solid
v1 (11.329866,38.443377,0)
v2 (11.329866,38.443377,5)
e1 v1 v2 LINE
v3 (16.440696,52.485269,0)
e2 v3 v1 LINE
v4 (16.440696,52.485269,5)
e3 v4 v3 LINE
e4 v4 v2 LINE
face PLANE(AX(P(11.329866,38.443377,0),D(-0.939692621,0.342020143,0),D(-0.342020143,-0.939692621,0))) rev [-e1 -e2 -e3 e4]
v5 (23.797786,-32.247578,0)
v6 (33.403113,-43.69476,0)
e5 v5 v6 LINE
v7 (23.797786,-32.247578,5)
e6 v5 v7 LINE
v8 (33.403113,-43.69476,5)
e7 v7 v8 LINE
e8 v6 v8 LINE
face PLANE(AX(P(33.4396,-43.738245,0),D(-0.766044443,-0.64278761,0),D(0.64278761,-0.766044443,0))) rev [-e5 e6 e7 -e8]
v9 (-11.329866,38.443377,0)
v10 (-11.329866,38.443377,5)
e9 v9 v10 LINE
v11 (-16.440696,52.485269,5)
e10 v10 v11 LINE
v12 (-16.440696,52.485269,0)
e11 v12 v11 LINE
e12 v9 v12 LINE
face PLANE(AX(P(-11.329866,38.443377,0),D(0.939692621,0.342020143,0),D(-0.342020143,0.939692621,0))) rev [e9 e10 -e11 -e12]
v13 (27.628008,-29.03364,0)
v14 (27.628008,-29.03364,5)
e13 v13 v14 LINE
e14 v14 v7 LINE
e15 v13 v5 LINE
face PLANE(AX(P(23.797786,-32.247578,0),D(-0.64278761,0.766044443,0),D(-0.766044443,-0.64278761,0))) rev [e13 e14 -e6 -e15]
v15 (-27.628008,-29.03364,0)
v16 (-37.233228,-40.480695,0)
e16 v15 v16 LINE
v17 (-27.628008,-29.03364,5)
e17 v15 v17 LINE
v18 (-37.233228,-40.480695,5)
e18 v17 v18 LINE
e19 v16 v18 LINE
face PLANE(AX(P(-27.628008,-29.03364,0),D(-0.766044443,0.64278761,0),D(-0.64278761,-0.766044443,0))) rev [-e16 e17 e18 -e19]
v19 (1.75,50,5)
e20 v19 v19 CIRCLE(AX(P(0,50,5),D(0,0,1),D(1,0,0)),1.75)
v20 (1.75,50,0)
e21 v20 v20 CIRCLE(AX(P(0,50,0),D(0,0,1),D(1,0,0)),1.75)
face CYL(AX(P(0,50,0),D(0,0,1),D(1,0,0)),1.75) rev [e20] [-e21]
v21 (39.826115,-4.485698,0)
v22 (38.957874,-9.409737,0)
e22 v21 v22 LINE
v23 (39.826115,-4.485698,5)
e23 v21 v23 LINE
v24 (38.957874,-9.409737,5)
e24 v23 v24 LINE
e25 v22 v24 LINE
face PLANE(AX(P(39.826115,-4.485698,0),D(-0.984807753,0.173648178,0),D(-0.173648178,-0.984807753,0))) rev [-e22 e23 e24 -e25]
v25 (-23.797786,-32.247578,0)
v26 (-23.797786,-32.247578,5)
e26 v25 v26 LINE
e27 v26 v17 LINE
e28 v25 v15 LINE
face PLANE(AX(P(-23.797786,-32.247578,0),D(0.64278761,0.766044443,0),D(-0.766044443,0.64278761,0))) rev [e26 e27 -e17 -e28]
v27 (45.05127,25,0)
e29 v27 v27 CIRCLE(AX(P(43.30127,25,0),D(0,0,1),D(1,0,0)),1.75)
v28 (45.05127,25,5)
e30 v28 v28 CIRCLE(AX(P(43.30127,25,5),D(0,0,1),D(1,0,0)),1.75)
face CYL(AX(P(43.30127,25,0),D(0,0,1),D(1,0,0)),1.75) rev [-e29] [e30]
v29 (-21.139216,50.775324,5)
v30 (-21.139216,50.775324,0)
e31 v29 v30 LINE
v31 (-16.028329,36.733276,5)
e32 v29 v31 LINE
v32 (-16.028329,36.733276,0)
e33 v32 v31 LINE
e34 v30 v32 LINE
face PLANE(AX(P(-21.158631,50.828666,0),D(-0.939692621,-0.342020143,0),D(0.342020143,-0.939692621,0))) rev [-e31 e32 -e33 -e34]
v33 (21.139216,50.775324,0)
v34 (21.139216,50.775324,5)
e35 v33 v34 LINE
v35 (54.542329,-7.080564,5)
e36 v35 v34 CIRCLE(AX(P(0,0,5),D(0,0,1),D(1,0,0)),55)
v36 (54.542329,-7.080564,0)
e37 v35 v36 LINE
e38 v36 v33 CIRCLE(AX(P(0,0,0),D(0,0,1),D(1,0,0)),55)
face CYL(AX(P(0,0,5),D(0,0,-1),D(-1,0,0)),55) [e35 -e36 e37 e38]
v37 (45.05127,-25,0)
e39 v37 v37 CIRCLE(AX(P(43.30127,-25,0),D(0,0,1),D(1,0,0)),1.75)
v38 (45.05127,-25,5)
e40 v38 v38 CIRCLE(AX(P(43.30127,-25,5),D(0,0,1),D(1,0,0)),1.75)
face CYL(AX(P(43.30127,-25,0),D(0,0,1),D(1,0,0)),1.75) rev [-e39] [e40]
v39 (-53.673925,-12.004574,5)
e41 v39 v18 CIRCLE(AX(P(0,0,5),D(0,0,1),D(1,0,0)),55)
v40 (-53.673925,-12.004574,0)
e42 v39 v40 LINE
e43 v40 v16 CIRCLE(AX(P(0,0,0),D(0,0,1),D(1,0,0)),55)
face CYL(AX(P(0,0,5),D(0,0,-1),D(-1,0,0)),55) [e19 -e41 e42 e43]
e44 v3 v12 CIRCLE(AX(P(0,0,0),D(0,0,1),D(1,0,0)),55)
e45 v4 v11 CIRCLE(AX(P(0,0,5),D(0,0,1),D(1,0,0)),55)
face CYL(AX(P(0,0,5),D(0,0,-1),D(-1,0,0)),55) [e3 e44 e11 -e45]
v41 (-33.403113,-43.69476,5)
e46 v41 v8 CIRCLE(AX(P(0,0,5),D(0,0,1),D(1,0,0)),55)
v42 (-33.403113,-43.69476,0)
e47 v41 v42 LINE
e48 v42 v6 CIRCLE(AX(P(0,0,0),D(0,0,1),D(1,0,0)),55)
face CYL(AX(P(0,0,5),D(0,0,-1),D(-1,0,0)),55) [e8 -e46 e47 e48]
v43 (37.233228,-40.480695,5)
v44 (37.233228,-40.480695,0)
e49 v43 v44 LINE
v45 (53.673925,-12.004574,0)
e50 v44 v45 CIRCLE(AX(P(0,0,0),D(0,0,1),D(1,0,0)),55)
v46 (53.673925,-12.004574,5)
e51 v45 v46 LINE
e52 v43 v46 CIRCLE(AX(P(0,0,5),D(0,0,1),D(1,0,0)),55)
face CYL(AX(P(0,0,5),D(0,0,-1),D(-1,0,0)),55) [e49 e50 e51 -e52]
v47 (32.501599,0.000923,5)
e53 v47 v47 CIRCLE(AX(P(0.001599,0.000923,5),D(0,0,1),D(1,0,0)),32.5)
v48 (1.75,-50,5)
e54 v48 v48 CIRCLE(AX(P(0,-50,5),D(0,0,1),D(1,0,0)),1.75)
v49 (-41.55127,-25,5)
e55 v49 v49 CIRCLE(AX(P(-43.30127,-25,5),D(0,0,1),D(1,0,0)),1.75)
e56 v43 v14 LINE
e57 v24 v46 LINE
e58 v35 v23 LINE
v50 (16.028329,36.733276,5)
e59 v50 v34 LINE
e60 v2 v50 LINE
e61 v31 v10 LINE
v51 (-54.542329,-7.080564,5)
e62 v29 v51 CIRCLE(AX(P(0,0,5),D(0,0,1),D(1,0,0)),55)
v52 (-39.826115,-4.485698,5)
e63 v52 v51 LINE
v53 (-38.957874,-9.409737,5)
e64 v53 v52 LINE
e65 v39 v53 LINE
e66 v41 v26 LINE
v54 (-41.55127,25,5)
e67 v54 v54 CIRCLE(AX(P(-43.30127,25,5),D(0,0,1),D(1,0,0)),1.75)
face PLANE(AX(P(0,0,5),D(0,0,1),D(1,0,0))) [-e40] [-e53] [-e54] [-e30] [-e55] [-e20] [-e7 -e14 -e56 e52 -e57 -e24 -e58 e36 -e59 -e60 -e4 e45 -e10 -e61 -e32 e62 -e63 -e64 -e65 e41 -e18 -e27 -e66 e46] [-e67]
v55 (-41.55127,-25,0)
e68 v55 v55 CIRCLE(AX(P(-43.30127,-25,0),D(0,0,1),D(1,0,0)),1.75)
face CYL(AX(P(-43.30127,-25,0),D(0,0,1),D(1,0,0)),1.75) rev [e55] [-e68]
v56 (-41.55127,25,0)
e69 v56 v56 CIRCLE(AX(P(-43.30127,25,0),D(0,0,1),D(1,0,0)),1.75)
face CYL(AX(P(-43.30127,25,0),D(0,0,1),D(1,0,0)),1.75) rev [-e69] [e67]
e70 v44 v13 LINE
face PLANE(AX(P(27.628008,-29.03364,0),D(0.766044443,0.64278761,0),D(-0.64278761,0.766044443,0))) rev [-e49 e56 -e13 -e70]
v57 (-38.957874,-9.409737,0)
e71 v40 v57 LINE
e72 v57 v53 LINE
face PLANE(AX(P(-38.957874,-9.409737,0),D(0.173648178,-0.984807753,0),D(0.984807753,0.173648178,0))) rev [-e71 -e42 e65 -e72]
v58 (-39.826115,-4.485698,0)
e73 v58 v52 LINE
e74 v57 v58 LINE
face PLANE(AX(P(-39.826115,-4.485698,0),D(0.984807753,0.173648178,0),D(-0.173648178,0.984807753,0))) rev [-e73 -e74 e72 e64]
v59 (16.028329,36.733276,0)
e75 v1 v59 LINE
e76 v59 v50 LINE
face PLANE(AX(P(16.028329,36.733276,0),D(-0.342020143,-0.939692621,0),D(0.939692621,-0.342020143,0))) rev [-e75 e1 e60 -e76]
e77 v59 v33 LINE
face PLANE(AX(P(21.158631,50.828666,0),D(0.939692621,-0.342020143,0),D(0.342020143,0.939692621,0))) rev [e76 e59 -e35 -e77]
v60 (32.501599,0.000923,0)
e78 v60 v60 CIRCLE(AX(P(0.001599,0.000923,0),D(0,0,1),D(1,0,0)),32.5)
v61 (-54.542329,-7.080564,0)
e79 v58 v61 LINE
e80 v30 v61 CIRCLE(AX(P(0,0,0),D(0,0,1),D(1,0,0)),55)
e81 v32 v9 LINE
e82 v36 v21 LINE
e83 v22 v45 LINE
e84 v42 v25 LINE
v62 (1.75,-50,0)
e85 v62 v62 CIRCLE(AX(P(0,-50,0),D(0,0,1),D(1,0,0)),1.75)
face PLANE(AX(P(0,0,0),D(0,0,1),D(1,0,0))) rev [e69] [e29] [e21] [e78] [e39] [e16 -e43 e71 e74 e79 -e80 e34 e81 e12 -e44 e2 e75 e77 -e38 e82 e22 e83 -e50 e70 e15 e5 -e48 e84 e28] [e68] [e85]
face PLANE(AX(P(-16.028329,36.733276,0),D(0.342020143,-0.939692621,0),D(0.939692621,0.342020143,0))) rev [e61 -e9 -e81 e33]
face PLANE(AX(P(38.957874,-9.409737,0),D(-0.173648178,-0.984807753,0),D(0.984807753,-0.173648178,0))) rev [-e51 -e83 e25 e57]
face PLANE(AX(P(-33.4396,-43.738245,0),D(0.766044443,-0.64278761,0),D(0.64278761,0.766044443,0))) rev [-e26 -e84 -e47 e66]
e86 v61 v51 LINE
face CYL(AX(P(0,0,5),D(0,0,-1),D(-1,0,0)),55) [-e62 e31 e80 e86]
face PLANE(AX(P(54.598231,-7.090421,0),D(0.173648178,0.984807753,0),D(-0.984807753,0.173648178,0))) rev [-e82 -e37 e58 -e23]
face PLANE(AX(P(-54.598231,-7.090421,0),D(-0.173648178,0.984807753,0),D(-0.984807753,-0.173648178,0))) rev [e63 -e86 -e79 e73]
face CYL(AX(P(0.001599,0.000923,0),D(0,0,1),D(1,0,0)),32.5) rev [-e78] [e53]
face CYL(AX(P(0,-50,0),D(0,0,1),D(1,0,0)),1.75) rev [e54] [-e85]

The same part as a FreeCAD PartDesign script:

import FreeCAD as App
import Part
import Sketcher
Q = App.Units.Quantity

doc = App.newDocument("Part")
body = doc.addObject("PartDesign::Body", "Body")

sketch1 = doc.addObject("Sketcher::SketchObject", "Sketch")
body.addObject(sketch1)
sketch1.AttachmentSupport = (doc.XY_Plane, [""])
sketch1.MapMode = "FlatFace"
sketch1.addGeometry(Part.Circle(App.Vector(0, 0, 0), App.Vector(0, 0, 1), 55), False)
sketch1.addConstraint([
    Sketcher.Constraint("Coincident", 0, 3, -1, 1),
    Sketcher.Constraint("Diameter", 0, Q("110 mm")),
])
pad1 = doc.addObject("PartDesign::Pad", "Pad")
body.addObject(pad1)
pad1.Profile = sketch1
pad1.Length = 5

sketch2 = doc.addObject("Sketcher::SketchObject", "Sketch001")
body.addObject(sketch2)
sketch2.AttachmentSupport = (doc.XY_Plane, [""])
sketch2.MapMode = "FlatFace"
sketch2.AttachmentOffset = App.Placement(App.Vector(0, 0, 5), App.Rotation())
sketch2.addGeometry([
    Part.Circle(App.Vector(0, 50, 0), App.Vector(0, 0, 1), 1.8),
    Part.Circle(App.Vector(43.3, 25, 0), App.Vector(0, 0, 1), 1.8),
    Part.Circle(App.Vector(43.3, -25, 0), App.Vector(0, 0, 1), 1.8),
    Part.Circle(App.Vector(0, -50, 0), App.Vector(0, 0, 1), 1.8),
    Part.Circle(App.Vector(-43.3, -25, 0), App.Vector(0, 0, 1), 1.8),
    Part.Circle(App.Vector(-43.3, 25, 0), App.Vector(0, 0, 1), 1.8),
    Part.Circle(App.Vector(0, 0, 0), App.Vector(0, 0, 1), 32.5),
    Part.LineSegment(App.Vector(-21.2, 50.8, 0), App.Vector(-16, 36.7, 0)),
    Part.LineSegment(App.Vector(-16, 36.7, 0), App.Vector(-11.3, 38.4, 0)),
    Part.LineSegment(App.Vector(-11.3, 38.4, 0), App.Vector(-16.5, 52.5, 0)),
    Part.LineSegment(App.Vector(-16.5, 52.5, 0), App.Vector(-21.2, 50.8, 0)),
    Part.LineSegment(App.Vector(11.3, 38.4, 0), App.Vector(16, 36.7, 0)),
    Part.LineSegment(App.Vector(16, 36.7, 0), App.Vector(21.2, 50.8, 0)),
    Part.LineSegment(App.Vector(21.2, 50.8, 0), App.Vector(16.5, 52.5, 0)),
    Part.LineSegment(App.Vector(16.5, 52.5, 0), App.Vector(11.3, 38.4, 0)),
    Part.LineSegment(App.Vector(54.6, -7.1, 0), App.Vector(39.8, -4.5, 0)),
    Part.LineSegment(App.Vector(39.8, -4.5, 0), App.Vector(39, -9.4, 0)),
    Part.LineSegment(App.Vector(39, -9.4, 0), App.Vector(53.7, -12, 0)),
    Part.LineSegment(App.Vector(53.7, -12, 0), App.Vector(54.6, -7.1, 0)),
    Part.LineSegment(App.Vector(37.3, -40.5, 0), App.Vector(27.6, -29, 0)),
    Part.LineSegment(App.Vector(27.6, -29, 0), App.Vector(23.8, -32.2, 0)),
    Part.LineSegment(App.Vector(23.8, -32.2, 0), App.Vector(33.4, -43.7, 0)),
    Part.LineSegment(App.Vector(33.4, -43.7, 0), App.Vector(37.3, -40.5, 0)),
    Part.LineSegment(App.Vector(-33.4, -43.7, 0), App.Vector(-23.8, -32.2, 0)),
    Part.LineSegment(App.Vector(-23.8, -32.2, 0), App.Vector(-27.6, -29, 0)),
    Part.LineSegment(App.Vector(-27.6, -29, 0), App.Vector(-37.3, -40.5, 0)),
    Part.LineSegment(App.Vector(-37.3, -40.5, 0), App.Vector(-33.4, -43.7, 0)),
    Part.LineSegment(App.Vector(-53.7, -12, 0), App.Vector(-39, -9.4, 0)),
    Part.LineSegment(App.Vector(-39, -9.4, 0), App.Vector(-39.8, -4.5, 0)),
    Part.LineSegment(App.Vector(-39.8, -4.5, 0), App.Vector(-54.6, -7.1, 0)),
    Part.LineSegment(App.Vector(-54.6, -7.1, 0), App.Vector(-53.7, -12, 0)),
], False)
sketch2.addConstraint([
    Sketcher.Constraint("Coincident", 7, 2, 8, 1),
    Sketcher.Constraint("Coincident", 8, 2, 9, 1),
    Sketcher.Constraint("Coincident", 9, 2, 10, 1),
    Sketcher.Constraint("Coincident", 10, 2, 7, 1),
    Sketcher.Constraint("Coincident", 11, 2, 12, 1),
    Sketcher.Constraint("Coincident", 12, 2, 13, 1),
    Sketcher.Constraint("Coincident", 13, 2, 14, 1),
    Sketcher.Constraint("Coincident", 14, 2, 11, 1),
    Sketcher.Constraint("Coincident", 15, 2, 16, 1),
    Sketcher.Constraint("Coincident", 16, 2, 17, 1),
    Sketcher.Constraint("Coincident", 17, 2, 18, 1),
    Sketcher.Constraint("Coincident", 18, 2, 15, 1),
    Sketcher.Constraint("Coincident", 19, 2, 20, 1),
    Sketcher.Constraint("Coincident", 20, 2, 21, 1),
    Sketcher.Constraint("Coincident", 21, 2, 22, 1),
    Sketcher.Constraint("Coincident", 22, 2, 19, 1),
    Sketcher.Constraint("Coincident", 23, 2, 24, 1),
    Sketcher.Constraint("Coincident", 24, 2, 25, 1),
    Sketcher.Constraint("Coincident", 25, 2, 26, 1),
    Sketcher.Constraint("Coincident", 26, 2, 23, 1),
    Sketcher.Constraint("Coincident", 27, 2, 28, 1),
    Sketcher.Constraint("Coincident", 28, 2, 29, 1),
    Sketcher.Constraint("Coincident", 29, 2, 30, 1),
    Sketcher.Constraint("Coincident", 30, 2, 27, 1),
    Sketcher.Constraint("Equal", 0, 1),
    Sketcher.Constraint("Equal", 1, 2),
    Sketcher.Constraint("Equal", 2, 3),
    Sketcher.Constraint("Equal", 3, 4),
    Sketcher.Constraint("Equal", 4, 5),
    Sketcher.Constraint("Symmetric", 0, 3, 3, 3, -1, 1),
    Sketcher.Constraint("Symmetric", 1, 3, 4, 3, -1, 1),
    Sketcher.Constraint("Symmetric", 2, 3, 5, 3, -1, 1),
    Sketcher.Constraint("Symmetric", 2, 3, 4, 3, -2),
    Sketcher.Constraint("Symmetric", 7, 2, 11, 2, -2),
    Sketcher.Constraint("Symmetric", 10, 2, 12, 2, -2),
    Sketcher.Constraint("Symmetric", 9, 2, 13, 2, -2),
    Sketcher.Constraint("Symmetric", 8, 2, 14, 2, -2),
    Sketcher.Constraint("Symmetric", 20, 2, 23, 2, -2),
    Sketcher.Constraint("Symmetric", 19, 2, 24, 2, -2),
    Sketcher.Constraint("Symmetric", 22, 2, 25, 2, -2),
    Sketcher.Constraint("Symmetric", 21, 2, 26, 2, -2),
    Sketcher.Constraint("Symmetric", 16, 2, 27, 2, -2),
    Sketcher.Constraint("Symmetric", 15, 2, 28, 2, -2),
    Sketcher.Constraint("Symmetric", 18, 2, 29, 2, -2),
    Sketcher.Constraint("Symmetric", 17, 2, 30, 2, -2),
    Sketcher.Constraint("PointOnObject", 0, 3, -2),
    Sketcher.Constraint("Perpendicular", 7, 8),
    Sketcher.Constraint("Perpendicular", 8, 9),
    Sketcher.Constraint("Perpendicular", 9, 10),
    Sketcher.Constraint("Perpendicular", 15, 16),
    Sketcher.Constraint("Perpendicular", 16, 17),
    Sketcher.Constraint("Perpendicular", 17, 18),
    Sketcher.Constraint("Perpendicular", 19, 20),
    Sketcher.Constraint("Perpendicular", 20, 21),
    Sketcher.Constraint("Perpendicular", 21, 22),
    Sketcher.Constraint("Equal", 14, 15),
    Sketcher.Constraint("Equal", 13, 16),
    Sketcher.Constraint("Equal", 17, 19),
    Sketcher.Constraint("Equal", 18, 20),
    Sketcher.Constraint("Diameter", 6, Q("65 mm")),
    Sketcher.Constraint("Diameter", 0, Q("3.5 mm")),
    Sketcher.Constraint("Angle", 7, Q("-70 deg")),
    Sketcher.Constraint("Angle", 15, Q("170 deg")),
    Sketcher.Constraint("Angle", 19, Q("130 deg")),
    Sketcher.Constraint("Distance", 7, Q("15 mm")),
    Sketcher.Constraint("Distance", 8, Q("5 mm")),
    Sketcher.Constraint("DistanceY", -1, 1, 0, 3, Q("50 mm")),
    Sketcher.Constraint("DistanceY", -1, 1, 1, 3, Q("25 mm")),
    Sketcher.Constraint("DistanceX", -1, 1, 6, 3, Q("0.001599 mm")),
    Sketcher.Constraint("DistanceY", 15, 2, -1, 1, Q("4.485698 mm")),
    Sketcher.Constraint("DistanceX", -1, 1, 21, 2, Q("33.4396 mm")),
    Sketcher.Constraint("DistanceX", 7, 2, 1, 3, Q("59.329599 mm")),
    Sketcher.Constraint("DistanceX", 9, 2, 12, 2, Q("37.618798 mm")),
    Sketcher.Constraint("DistanceY", 23, 2, 6, 3, Q("32.248501 mm")),
    Sketcher.Constraint("DistanceX", -1, 1, 17, 2, Q("53.72999 mm")),
    Sketcher.Constraint("DistanceY", 19, 2, -1, 1, Q("29.03364 mm")),
    Sketcher.Constraint("DistanceY", -1, 1, 7, 2, Q("36.733276 mm")),
])
pocket1 = doc.addObject("PartDesign::Pocket", "Pocket")
body.addObject(pocket1)
pocket1.Profile = sketch2
pocket1.Type = "ThroughAll"

doc.recompute()
